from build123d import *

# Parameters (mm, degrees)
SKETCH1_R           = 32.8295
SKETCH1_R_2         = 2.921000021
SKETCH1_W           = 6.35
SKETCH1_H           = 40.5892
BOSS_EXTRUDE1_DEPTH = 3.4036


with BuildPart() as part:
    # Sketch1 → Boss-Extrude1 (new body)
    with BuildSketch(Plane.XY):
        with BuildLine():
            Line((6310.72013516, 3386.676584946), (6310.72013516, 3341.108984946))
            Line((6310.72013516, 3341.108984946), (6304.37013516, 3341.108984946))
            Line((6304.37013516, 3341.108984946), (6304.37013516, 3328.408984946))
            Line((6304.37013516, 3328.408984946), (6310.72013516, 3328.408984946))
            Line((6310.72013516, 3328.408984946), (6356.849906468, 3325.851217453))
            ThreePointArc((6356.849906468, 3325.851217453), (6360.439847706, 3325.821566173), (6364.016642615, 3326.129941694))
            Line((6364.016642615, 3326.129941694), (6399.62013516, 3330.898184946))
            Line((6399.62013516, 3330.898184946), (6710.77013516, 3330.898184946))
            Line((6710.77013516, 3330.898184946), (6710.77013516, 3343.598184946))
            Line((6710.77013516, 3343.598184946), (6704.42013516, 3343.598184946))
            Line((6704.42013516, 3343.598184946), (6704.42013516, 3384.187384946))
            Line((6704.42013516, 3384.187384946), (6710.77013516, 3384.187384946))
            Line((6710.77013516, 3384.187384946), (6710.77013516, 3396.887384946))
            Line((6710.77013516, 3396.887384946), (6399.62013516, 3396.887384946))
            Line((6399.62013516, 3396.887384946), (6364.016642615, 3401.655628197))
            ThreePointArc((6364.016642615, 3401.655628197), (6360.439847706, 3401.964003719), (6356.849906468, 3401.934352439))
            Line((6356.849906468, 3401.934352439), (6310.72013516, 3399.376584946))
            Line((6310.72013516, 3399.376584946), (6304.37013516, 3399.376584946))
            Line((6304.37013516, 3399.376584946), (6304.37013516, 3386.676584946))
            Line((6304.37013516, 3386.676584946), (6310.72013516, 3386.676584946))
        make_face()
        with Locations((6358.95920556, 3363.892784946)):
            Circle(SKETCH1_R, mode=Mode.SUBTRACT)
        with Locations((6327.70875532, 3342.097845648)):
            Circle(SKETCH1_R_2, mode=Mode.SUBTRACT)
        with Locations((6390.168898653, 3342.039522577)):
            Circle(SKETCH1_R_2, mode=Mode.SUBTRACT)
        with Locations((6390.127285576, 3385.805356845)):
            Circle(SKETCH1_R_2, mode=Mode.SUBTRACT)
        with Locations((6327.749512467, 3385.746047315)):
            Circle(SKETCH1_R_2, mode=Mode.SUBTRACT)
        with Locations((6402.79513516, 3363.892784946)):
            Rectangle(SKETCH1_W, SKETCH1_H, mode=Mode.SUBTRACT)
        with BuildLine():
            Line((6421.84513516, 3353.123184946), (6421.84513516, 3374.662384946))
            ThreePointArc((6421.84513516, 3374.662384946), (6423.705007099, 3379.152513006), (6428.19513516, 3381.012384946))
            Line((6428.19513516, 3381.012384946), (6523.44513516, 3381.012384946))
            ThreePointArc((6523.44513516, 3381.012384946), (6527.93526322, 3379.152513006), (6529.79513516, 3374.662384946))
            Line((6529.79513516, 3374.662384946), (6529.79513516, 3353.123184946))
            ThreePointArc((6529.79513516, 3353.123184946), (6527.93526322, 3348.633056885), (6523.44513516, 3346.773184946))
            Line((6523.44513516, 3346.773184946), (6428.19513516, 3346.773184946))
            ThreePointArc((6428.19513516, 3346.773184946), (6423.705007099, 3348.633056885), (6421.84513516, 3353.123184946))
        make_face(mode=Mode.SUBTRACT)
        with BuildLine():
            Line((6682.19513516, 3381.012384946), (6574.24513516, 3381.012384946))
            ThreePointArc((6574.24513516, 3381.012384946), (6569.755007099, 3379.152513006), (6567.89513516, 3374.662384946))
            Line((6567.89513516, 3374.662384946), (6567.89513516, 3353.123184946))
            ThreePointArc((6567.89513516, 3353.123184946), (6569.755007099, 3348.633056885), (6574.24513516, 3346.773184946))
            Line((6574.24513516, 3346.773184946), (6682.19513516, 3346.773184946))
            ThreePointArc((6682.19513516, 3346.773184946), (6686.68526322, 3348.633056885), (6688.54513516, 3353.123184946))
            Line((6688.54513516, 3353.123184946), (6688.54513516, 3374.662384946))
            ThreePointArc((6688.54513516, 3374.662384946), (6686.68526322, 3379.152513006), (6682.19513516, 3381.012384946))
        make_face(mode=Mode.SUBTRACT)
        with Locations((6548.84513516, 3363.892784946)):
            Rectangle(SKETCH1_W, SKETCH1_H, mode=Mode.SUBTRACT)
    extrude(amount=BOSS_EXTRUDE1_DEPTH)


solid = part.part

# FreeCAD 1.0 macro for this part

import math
import FreeCAD as App
import Part
import Sketcher
Q = App.Units.Quantity

doc = App.newDocument("Part")
body = doc.addObject("PartDesign::Body", "Body")

sketch1 = body.newObject("Sketcher::SketchObject", "Sketch")
sketch1.AttachmentSupport = (doc.getObject("XY_Plane"), [""])
sketch1.MapMode = "FlatFace"
sketch1.addGeometry(Part.LineSegment(App.Vector(6310.720135, 3386.676585, 0), App.Vector(6310.720135, 3341.108985, 0)), False)
sketch1.addGeometry(Part.LineSegment(App.Vector(6310.720135, 3341.108985, 0), App.Vector(6304.370135, 3341.108985, 0)), False)
sketch1.addGeometry(Part.LineSegment(App.Vector(6304.370135, 3341.108985, 0), App.Vector(6304.370135, 3328.408985, 0)), False)
sketch1.addGeometry(Part.LineSegment(App.Vector(6304.370135, 3328.408985, 0), App.Vector(6310.720135, 3328.408985, 0)), False)
sketch1.addGeometry(Part.LineSegment(App.Vector(6310.720135, 3328.408985, 0), App.Vector(6356.849906, 3325.851217, 0)), False)
sketch1.addGeometry(Part.ArcOfCircle(Part.Circle(App.Vector(6358.959206, 3363.892785, 0), App.Vector(0, 0, 1), 38.1), math.radians(-93.173642), math.radians(-82.371979)), False)
sketch1.addGeometry(Part.LineSegment(App.Vector(6364.016643, 3326.129942, 0), App.Vector(6399.620135, 3330.898185, 0)), False)
sketch1.addGeometry(Part.LineSegment(App.Vector(6399.620135, 3330.898185, 0), App.Vector(6710.770135, 3330.898185, 0)), False)
sketch1.addGeometry(Part.LineSegment(App.Vector(6710.770135, 3330.898185, 0), App.Vector(6710.770135, 3343.598185, 0)), False)
sketch1.addGeometry(Part.LineSegment(App.Vector(6710.770135, 3343.598185, 0), App.Vector(6704.420135, 3343.598185, 0)), False)
sketch1.addGeometry(Part.LineSegment(App.Vector(6704.420135, 3343.598185, 0), App.Vector(6704.420135, 3384.187385, 0)), False)
sketch1.addGeometry(Part.LineSegment(App.Vector(6704.420135, 3384.187385, 0), App.Vector(6710.770135, 3384.187385, 0)), False)
sketch1.addGeometry(Part.LineSegment(App.Vector(6710.770135, 3384.187385, 0), App.Vector(6710.770135, 3396.887385, 0)), False)
sketch1.addGeometry(Part.LineSegment(App.Vector(6710.770135, 3396.887385, 0), App.Vector(6399.620135, 3396.887385, 0)), False)
sketch1.addGeometry(Part.LineSegment(App.Vector(6399.620135, 3396.887385, 0), App.Vector(6364.016643, 3401.655628, 0)), False)
sketch1.addGeometry(Part.ArcOfCircle(Part.Circle(App.Vector(6358.959206, 3363.892785, 0), App.Vector(0, 0, 1), 38.1), math.radians(82.371979), math.radians(93.173642)), False)
sketch1.addGeometry(Part.LineSegment(App.Vector(6356.849906, 3401.934352, 0), App.Vector(6310.720135, 3399.376585, 0)), False)
sketch1.addGeometry(Part.LineSegment(App.Vector(6310.720135, 3399.376585, 0), App.Vector(6304.370135, 3399.376585, 0)), False)
sketch1.addGeometry(Part.LineSegment(App.Vector(6304.370135, 3399.376585, 0), App.Vector(6304.370135, 3386.676585, 0)), False)
sketch1.addGeometry(Part.LineSegment(App.Vector(6304.370135, 3386.676585, 0), App.Vector(6310.720135, 3386.676585, 0)), False)
sketch1.addGeometry(Part.Circle(App.Vector(6327.708755, 3342.097846, 0), App.Vector(0, 0, 1), 2.921), False)
sketch1.addGeometry(Part.Circle(App.Vector(6390.168899, 3342.039523, 0), App.Vector(0, 0, 1), 2.921), False)
sketch1.addGeometry(Part.LineSegment(App.Vector(6574.245135, 3381.012385, 0), App.Vector(6682.195135, 3381.012385, 0)), False)
sketch1.addGeometry(Part.ArcOfCircle(Part.Circle(App.Vector(6682.195135, 3374.662385, 0), App.Vector(0, 0, 1), 6.35), math.radians(0), math.radians(90)), False)
sketch1.addGeometry(Part.LineSegment(App.Vector(6688.545135, 3374.662385, 0), App.Vector(6688.545135, 3353.123185, 0)), False)
sketch1.addGeometry(Part.ArcOfCircle(Part.Circle(App.Vector(6682.195135, 3353.123185, 0), App.Vector(0, 0, 1), 6.35), math.radians(-90), math.radians(0)), False)
sketch1.addGeometry(Part.LineSegment(App.Vector(6682.195135, 3346.773185, 0), App.Vector(6574.245135, 3346.773185, 0)), False)
sketch1.addGeometry(Part.ArcOfCircle(Part.Circle(App.Vector(6574.245135, 3353.123185, 0), App.Vector(0, 0, 1), 6.35), math.radians(180), math.radians(270)), False)
sketch1.addGeometry(Part.LineSegment(App.Vector(6567.895135, 3353.123185, 0), App.Vector(6567.895135, 3374.662385, 0)), False)
sketch1.addGeometry(Part.ArcOfCircle(Part.Circle(App.Vector(6574.245135, 3374.662385, 0), App.Vector(0, 0, 1), 6.35), math.radians(90), math.radians(180)), False)
sketch1.addGeometry(Part.Circle(App.Vector(6358.959206, 3363.892785, 0), App.Vector(0, 0, 1), 32.8295), False)
sketch1.addGeometry(Part.LineSegment(App.Vector(6405.970135, 3343.598185, 0), App.Vector(6399.620135, 3343.598185, 0)), False)
sketch1.addGeometry(Part.LineSegment(App.Vector(6399.620135, 3343.598185, 0), App.Vector(6399.620135, 3384.187385, 0)), False)
sketch1.addGeometry(Part.LineSegment(App.Vector(6399.620135, 3384.187385, 0), App.Vector(6405.970135, 3384.187385, 0)), False)
sketch1.addGeometry(Part.LineSegment(App.Vector(6405.970135, 3384.187385, 0), App.Vector(6405.970135, 3343.598185, 0)), False)
sketch1.addGeometry(Part.ArcOfCircle(Part.Circle(App.Vector(6428.195135, 3353.123185, 0), App.Vector(0, 0, 1), 6.35), math.radians(180), math.radians(270)), False)
sketch1.addGeometry(Part.LineSegment(App.Vector(6421.845135, 3353.123185, 0), App.Vector(6421.845135, 3374.662385, 0)), False)
sketch1.addGeometry(Part.ArcOfCircle(Part.Circle(App.Vector(6428.195135, 3374.662385, 0), App.Vector(0, 0, 1), 6.35), math.radians(90), math.radians(180)), False)
sketch1.addGeometry(Part.LineSegment(App.Vector(6428.195135, 3381.012385, 0), App.Vector(6523.445135, 3381.012385, 0)), False)
sketch1.addGeometry(Part.ArcOfCircle(Part.Circle(App.Vector(6523.445135, 3374.662385, 0), App.Vector(0, 0, 1), 6.35), math.radians(0), math.radians(90)), False)
sketch1.addGeometry(Part.LineSegment(App.Vector(6529.795135, 3374.662385, 0), App.Vector(6529.795135, 3353.123185, 0)), False)
sketch1.addGeometry(Part.ArcOfCircle(Part.Circle(App.Vector(6523.445135, 3353.123185, 0), App.Vector(0, 0, 1), 6.35), math.radians(-90), math.radians(0)), False)
sketch1.addGeometry(Part.LineSegment(App.Vector(6523.445135, 3346.773185, 0), App.Vector(6428.195135, 3346.773185, 0)), False)
sketch1.addGeometry(Part.Circle(App.Vector(6327.749512, 3385.746047, 0), App.Vector(0, 0, 1), 2.921), False)
sketch1.addGeometry(Part.Circle(App.Vector(6390.127286, 3385.805357, 0), App.Vector(0, 0, 1), 2.921), False)
sketch1.addGeometry(Part.LineSegment(App.Vector(6552.020135, 3343.598185, 0), App.Vector(6545.670135, 3343.598185, 0)), False)
sketch1.addGeometry(Part.LineSegment(App.Vector(6545.670135, 3343.598185, 0), App.Vector(6545.670135, 3384.187385, 0)), False)
sketch1.addGeometry(Part.LineSegment(App.Vector(6545.670135, 3384.187385, 0), App.Vector(6552.020135, 3384.187385, 0)), False)
sketch1.addGeometry(Part.LineSegment(App.Vector(6552.020135, 3384.187385, 0), App.Vector(6552.020135, 3343.598185, 0)), False)
sketch1.addConstraint(Sketcher.Constraint("Coincident", 0, 2, 1, 1))
sketch1.addConstraint(Sketcher.Constraint("Coincident", 1, 2, 2, 1))
sketch1.addConstraint(Sketcher.Constraint("Coincident", 2, 2, 3, 1))
sketch1.addConstraint(Sketcher.Constraint("Coincident", 3, 2, 4, 1))
sketch1.addConstraint(Sketcher.Constraint("Tangent", 4, 2, 5, 1))
sketch1.addConstraint(Sketcher.Constraint("Tangent", 5, 2, 6, 1))
sketch1.addConstraint(Sketcher.Constraint("Coincident", 6, 2, 7, 1))
sketch1.addConstraint(Sketcher.Constraint("Coincident", 7, 2, 8, 1))
sketch1.addConstraint(Sketcher.Constraint("Coincident", 8, 2, 9, 1))
sketch1.addConstraint(Sketcher.Constraint("Coincident", 9, 2, 10, 1))
sketch1.addConstraint(Sketcher.Constraint("Coincident", 10, 2, 11, 1))
sketch1.addConstraint(Sketcher.Constraint("Coincident", 11, 2, 12, 1))
sketch1.addConstraint(Sketcher.Constraint("Coincident", 12, 2, 13, 1))
sketch1.addConstraint(Sketcher.Constraint("Coincident", 13, 2, 14, 1))
sketch1.addConstraint(Sketcher.Constraint("Tangent", 14, 2, 15, 1))
sketch1.addConstraint(Sketcher.Constraint("Tangent", 15, 2, 16, 1))
sketch1.addConstraint(Sketcher.Constraint("Coincident", 16, 2, 17, 1))
sketch1.addConstraint(Sketcher.Constraint("Coincident", 17, 2, 18, 1))
sketch1.addConstraint(Sketcher.Constraint("Coincident", 18, 2, 19, 1))
sketch1.addConstraint(Sketcher.Constraint("Coincident", 19, 2, 0, 1))
sketch1.addConstraint(Sketcher.Constraint("Tangent", 22, 2, 23, 2))
sketch1.addConstraint(Sketcher.Constraint("Tangent", 23, 1, 24, 1))
sketch1.addConstraint(Sketcher.Constraint("Tangent", 24, 2, 25, 2))
sketch1.addConstraint(Sketcher.Constraint("Tangent", 25, 1, 26, 1))
sketch1.addConstraint(Sketcher.Constraint("Tangent", 26, 2, 27, 2))
sketch1.addConstraint(Sketcher.Constraint("Tangent", 27, 1, 28, 1))
sketch1.addConstraint(Sketcher.Constraint("Tangent", 28, 2, 29, 2))
sketch1.addConstraint(Sketcher.Constraint("Tangent", 29, 1, 22, 1))
sketch1.addConstraint(Sketcher.Constraint("Coincident", 31, 2, 32, 1))
sketch1.addConstraint(Sketcher.Constraint("Coincident", 32, 2, 33, 1))
sketch1.addConstraint(Sketcher.Constraint("Coincident", 33, 2, 34, 1))
sketch1.addConstraint(Sketcher.Constraint("Coincident", 34, 2, 31, 1))
sketch1.addConstraint(Sketcher.Constraint("Tangent", 35, 1, 36, 1))
sketch1.addConstraint(Sketcher.Constraint("Tangent", 36, 2, 37, 2))
sketch1.addConstraint(Sketcher.Constraint("Tangent", 37, 1, 38, 1))
sketch1.addConstraint(Sketcher.Constraint("Tangent", 38, 2, 39, 2))
sketch1.addConstraint(Sketcher.Constraint("Tangent", 39, 1, 40, 1))
sketch1.addConstraint(Sketcher.Constraint("Tangent", 40, 2, 41, 2))
sketch1.addConstraint(Sketcher.Constraint("Tangent", 41, 1, 42, 1))
sketch1.addConstraint(Sketcher.Constraint("Tangent", 42, 2, 35, 2))
sketch1.addConstraint(Sketcher.Constraint("Coincident", 45, 2, 46, 1))
sketch1.addConstraint(Sketcher.Constraint("Coincident", 46, 2, 47, 1))
sketch1.addConstraint(Sketcher.Constraint("Coincident", 47, 2, 48, 1))
sketch1.addConstraint(Sketcher.Constraint("Coincident", 48, 2, 45, 1))
sketch1.addConstraint(Sketcher.Constraint("Vertical", 0))
sketch1.addConstraint(Sketcher.Constraint("Horizontal", 1))
sketch1.addConstraint(Sketcher.Constraint("Vertical", 2))
sketch1.addConstraint(Sketcher.Constraint("Horizontal", 3))
sketch1.addConstraint(Sketcher.Constraint("Horizontal", 7))
sketch1.addConstraint(Sketcher.Constraint("Vertical", 8))
sketch1.addConstraint(Sketcher.Constraint("Horizontal", 9))
sketch1.addConstraint(Sketcher.Constraint("Vertical", 10))
sketch1.addConstraint(Sketcher.Constraint("Horizontal", 11))
sketch1.addConstraint(Sketcher.Constraint("Vertical", 12))
sketch1.addConstraint(Sketcher.Constraint("Horizontal", 13))
sketch1.addConstraint(Sketcher.Constraint("Horizontal", 17))
sketch1.addConstraint(Sketcher.Constraint("Vertical", 18))
sketch1.addConstraint(Sketcher.Constraint("Horizontal", 19))
sketch1.addConstraint(Sketcher.Constraint("Horizontal", 22))
sketch1.addConstraint(Sketcher.Constraint("Vertical", 24))
sketch1.addConstraint(Sketcher.Constraint("Horizontal", 26))
sketch1.addConstraint(Sketcher.Constraint("Vertical", 28))
sketch1.addConstraint(Sketcher.Constraint("Horizontal", 31))
sketch1.addConstraint(Sketcher.Constraint("Vertical", 32))
sketch1.addConstraint(Sketcher.Constraint("Horizontal", 33))
sketch1.addConstraint(Sketcher.Constraint("Vertical", 34))
sketch1.addConstraint(Sketcher.Constraint("Vertical", 36))
sketch1.addConstraint(Sketcher.Constraint("Horizontal", 38))
sketch1.addConstraint(Sketcher.Constraint("Vertical", 40))
sketch1.addConstraint(Sketcher.Constraint("Horizontal", 42))
sketch1.addConstraint(Sketcher.Constraint("Horizontal", 45))
sketch1.addConstraint(Sketcher.Constraint("Vertical", 46))
sketch1.addConstraint(Sketcher.Constraint("Horizontal", 47))
sketch1.addConstraint(Sketcher.Constraint("Vertical", 48))
sketch1.addConstraint(Sketcher.Constraint("Coincident", 15, 3, 5, 3))
sketch1.addConstraint(Sketcher.Constraint("Coincident", 30, 3, 5, 3))
sketch1.addConstraint(Sketcher.Constraint("Equal", 5, 15))
sketch1.addConstraint(Sketcher.Constraint("Equal", 20, 21))
sketch1.addConstraint(Sketcher.Constraint("Equal", 23, 25))
sketch1.addConstraint(Sketcher.Constraint("Equal", 25, 27))
sketch1.addConstraint(Sketcher.Constraint("Equal", 27, 29))
sketch1.addConstraint(Sketcher.Constraint("Equal", 29, 35))
sketch1.addConstraint(Sketcher.Constraint("Equal", 35, 37))
sketch1.addConstraint(Sketcher.Constraint("Equal", 37, 39))
sketch1.addConstraint(Sketcher.Constraint("Equal", 39, 41))
sketch1.addConstraint(Sketcher.Constraint("Equal", 21, 43))
sketch1.addConstraint(Sketcher.Constraint("Equal", 43, 44))
sketch1.addConstraint(Sketcher.Constraint("Horizontal", 27, 3, 35, 3))
sketch1.addConstraint(Sketcher.Constraint("Horizontal", 29, 3, 37, 3))
sketch1.addConstraint(Sketcher.Constraint("Horizontal", 9, 2, 31, 2))
sketch1.addConstraint(Sketcher.Constraint("Horizontal", 11, 2, 32, 2))
sketch1.addConstraint(Sketcher.Constraint("Horizontal", 34, 2, 45, 2))
sketch1.addConstraint(Sketcher.Constraint("Horizontal", 33, 2, 46, 2))
sketch1.addConstraint(Sketcher.Constraint("Vertical", 0, 2, 3, 2))
sketch1.addConstraint(Sketcher.Constraint("Vertical", 8, 2, 11, 2))
sketch1.addConstraint(Sketcher.Constraint("Vertical", 6, 2, 13, 2))
sketch1.addConstraint(Sketcher.Constraint("Vertical", 5, 2, 14, 2))
sketch1.addConstraint(Sketcher.Constraint("Vertical", 4, 2, 15, 2))
sketch1.addConstraint(Sketcher.Constraint("Vertical", 3, 2, 16, 2))
sketch1.addConstraint(Sketcher.Constraint("Vertical", 2, 2, 17, 2))
sketch1.addConstraint(Sketcher.Constraint("Vertical", 13, 2, 31, 2))
sketch1.addConstraint(Sketcher.Constraint("Equal", 3, 9))
sketch1.addConstraint(Sketcher.Constraint("Equal", 19, 31))
sketch1.addConstraint(Sketcher.Constraint("Equal", 33, 45))
sketch1.addConstraint(Sketcher.Constraint("Equal", 2, 8))
sketch1.addConstraint(Sketcher.Constraint("Equal", 8, 12))
sketch1.addConstraint(Sketcher.Constraint("Equal", 12, 18))
sketch1.addConstraint(Sketcher.Constraint("Radius", 5, Q("1.5 in")))
sketch1.addConstraint(Sketcher.Constraint("Diameter", 20, Q("0.23 in")))
sketch1.addConstraint(Sketcher.Constraint("Radius", 23, Q("0.25 in")))
sketch1.addConstraint(Sketcher.Constraint("Diameter", 30, Q("2.585 in")))
sketch1.addConstraint(Sketcher.Constraint("DistanceY", 2, 2, 2, 1, Q("0.5 in")))
sketch1.addConstraint(Sketcher.Constraint("DistanceX", 39, 3, 29, 3, Q("2 in")))
sketch1.addConstraint(Sketcher.Constraint("DistanceX", 1, 2, 1, 1, Q("0.25 in")))
sketch1.addConstraint(Sketcher.Constraint("DistanceX", 7, 1, 7, 2, Q("12.25 in")))
sketch1.addConstraint(Sketcher.Constraint("DistanceX", 22, 1, 22, 2, Q("4.25 in")))
sketch1.addConstraint(Sketcher.Constraint("DistanceX", 38, 1, 38, 2, Q("3.75 in")))
sketch1.addConstraint(Sketcher.Constraint("DistanceY", 0, 2, 0, 1, Q("1.794 in")))
sketch1.addConstraint(Sketcher.Constraint("DistanceY", 10, 1, 10, 2, Q("1.598 in")))
sketch1.addConstraint(Sketcher.Constraint("DistanceY", 24, 2, 24, 1, Q("0.848 in")))
sketch1.addConstraint(Sketcher.Constraint("DistanceY", 15, 3, 23, 3, Q("0.424 in")))
sketch1.addConstraint(Sketcher.Constraint("DistanceX", 6, 2, 35, 3, Q("1.125 in")))
sketch1.addConstraint(Sketcher.Constraint("DistanceY", 44, 3, 15, 2, Q("0.6349998 in")))
sketch1.addConstraint(Sketcher.Constraint("DistanceX", 40, 2, 45, 2, Q("0.625 in")))
sketch1.addConstraint(Sketcher.Constraint("DistanceX", -1, 1, 21, 3, 6390.168899))
sketch1.addConstraint(Sketcher.Constraint("DistanceY", 20, 3, 43, 3, 43.648202))
sketch1.addConstraint(Sketcher.Constraint("DistanceX", 4, 2, 5, 3, 2.109299))
sketch1.addConstraint(Sketcher.Constraint("Distance", 6, 35.92137))
sketch1.addConstraint(Sketcher.Constraint("DistanceY", -1, 1, 5, 2, 3326.129942))
sketch1.addConstraint(Sketcher.Constraint("DistanceX", 20, 3, 5, 3, 31.25045))
sketch1.addConstraint(Sketcher.Constraint("DistanceY", 20, 3, 5, 3, 21.794939))
sketch1.addConstraint(Sketcher.Constraint("DistanceX", 15, 3, 44, 3, 31.16808))
sketch1.addConstraint(Sketcher.Constraint("DistanceY", 5, 2, 21, 3, 15.909581))
sketch1.addConstraint(Sketcher.Constraint("DistanceX", -1, 1, 5, 3, 6358.959206))
sketch1.addConstraint(Sketcher.Constraint("DistanceX", -1, 1, 43, 3, 6327.749512))
pad1 = body.newObject("PartDesign::Pad", "Pad")
pad1.Profile = sketch1
pad1.Length = Q("0.134 in")

doc.recompute()
